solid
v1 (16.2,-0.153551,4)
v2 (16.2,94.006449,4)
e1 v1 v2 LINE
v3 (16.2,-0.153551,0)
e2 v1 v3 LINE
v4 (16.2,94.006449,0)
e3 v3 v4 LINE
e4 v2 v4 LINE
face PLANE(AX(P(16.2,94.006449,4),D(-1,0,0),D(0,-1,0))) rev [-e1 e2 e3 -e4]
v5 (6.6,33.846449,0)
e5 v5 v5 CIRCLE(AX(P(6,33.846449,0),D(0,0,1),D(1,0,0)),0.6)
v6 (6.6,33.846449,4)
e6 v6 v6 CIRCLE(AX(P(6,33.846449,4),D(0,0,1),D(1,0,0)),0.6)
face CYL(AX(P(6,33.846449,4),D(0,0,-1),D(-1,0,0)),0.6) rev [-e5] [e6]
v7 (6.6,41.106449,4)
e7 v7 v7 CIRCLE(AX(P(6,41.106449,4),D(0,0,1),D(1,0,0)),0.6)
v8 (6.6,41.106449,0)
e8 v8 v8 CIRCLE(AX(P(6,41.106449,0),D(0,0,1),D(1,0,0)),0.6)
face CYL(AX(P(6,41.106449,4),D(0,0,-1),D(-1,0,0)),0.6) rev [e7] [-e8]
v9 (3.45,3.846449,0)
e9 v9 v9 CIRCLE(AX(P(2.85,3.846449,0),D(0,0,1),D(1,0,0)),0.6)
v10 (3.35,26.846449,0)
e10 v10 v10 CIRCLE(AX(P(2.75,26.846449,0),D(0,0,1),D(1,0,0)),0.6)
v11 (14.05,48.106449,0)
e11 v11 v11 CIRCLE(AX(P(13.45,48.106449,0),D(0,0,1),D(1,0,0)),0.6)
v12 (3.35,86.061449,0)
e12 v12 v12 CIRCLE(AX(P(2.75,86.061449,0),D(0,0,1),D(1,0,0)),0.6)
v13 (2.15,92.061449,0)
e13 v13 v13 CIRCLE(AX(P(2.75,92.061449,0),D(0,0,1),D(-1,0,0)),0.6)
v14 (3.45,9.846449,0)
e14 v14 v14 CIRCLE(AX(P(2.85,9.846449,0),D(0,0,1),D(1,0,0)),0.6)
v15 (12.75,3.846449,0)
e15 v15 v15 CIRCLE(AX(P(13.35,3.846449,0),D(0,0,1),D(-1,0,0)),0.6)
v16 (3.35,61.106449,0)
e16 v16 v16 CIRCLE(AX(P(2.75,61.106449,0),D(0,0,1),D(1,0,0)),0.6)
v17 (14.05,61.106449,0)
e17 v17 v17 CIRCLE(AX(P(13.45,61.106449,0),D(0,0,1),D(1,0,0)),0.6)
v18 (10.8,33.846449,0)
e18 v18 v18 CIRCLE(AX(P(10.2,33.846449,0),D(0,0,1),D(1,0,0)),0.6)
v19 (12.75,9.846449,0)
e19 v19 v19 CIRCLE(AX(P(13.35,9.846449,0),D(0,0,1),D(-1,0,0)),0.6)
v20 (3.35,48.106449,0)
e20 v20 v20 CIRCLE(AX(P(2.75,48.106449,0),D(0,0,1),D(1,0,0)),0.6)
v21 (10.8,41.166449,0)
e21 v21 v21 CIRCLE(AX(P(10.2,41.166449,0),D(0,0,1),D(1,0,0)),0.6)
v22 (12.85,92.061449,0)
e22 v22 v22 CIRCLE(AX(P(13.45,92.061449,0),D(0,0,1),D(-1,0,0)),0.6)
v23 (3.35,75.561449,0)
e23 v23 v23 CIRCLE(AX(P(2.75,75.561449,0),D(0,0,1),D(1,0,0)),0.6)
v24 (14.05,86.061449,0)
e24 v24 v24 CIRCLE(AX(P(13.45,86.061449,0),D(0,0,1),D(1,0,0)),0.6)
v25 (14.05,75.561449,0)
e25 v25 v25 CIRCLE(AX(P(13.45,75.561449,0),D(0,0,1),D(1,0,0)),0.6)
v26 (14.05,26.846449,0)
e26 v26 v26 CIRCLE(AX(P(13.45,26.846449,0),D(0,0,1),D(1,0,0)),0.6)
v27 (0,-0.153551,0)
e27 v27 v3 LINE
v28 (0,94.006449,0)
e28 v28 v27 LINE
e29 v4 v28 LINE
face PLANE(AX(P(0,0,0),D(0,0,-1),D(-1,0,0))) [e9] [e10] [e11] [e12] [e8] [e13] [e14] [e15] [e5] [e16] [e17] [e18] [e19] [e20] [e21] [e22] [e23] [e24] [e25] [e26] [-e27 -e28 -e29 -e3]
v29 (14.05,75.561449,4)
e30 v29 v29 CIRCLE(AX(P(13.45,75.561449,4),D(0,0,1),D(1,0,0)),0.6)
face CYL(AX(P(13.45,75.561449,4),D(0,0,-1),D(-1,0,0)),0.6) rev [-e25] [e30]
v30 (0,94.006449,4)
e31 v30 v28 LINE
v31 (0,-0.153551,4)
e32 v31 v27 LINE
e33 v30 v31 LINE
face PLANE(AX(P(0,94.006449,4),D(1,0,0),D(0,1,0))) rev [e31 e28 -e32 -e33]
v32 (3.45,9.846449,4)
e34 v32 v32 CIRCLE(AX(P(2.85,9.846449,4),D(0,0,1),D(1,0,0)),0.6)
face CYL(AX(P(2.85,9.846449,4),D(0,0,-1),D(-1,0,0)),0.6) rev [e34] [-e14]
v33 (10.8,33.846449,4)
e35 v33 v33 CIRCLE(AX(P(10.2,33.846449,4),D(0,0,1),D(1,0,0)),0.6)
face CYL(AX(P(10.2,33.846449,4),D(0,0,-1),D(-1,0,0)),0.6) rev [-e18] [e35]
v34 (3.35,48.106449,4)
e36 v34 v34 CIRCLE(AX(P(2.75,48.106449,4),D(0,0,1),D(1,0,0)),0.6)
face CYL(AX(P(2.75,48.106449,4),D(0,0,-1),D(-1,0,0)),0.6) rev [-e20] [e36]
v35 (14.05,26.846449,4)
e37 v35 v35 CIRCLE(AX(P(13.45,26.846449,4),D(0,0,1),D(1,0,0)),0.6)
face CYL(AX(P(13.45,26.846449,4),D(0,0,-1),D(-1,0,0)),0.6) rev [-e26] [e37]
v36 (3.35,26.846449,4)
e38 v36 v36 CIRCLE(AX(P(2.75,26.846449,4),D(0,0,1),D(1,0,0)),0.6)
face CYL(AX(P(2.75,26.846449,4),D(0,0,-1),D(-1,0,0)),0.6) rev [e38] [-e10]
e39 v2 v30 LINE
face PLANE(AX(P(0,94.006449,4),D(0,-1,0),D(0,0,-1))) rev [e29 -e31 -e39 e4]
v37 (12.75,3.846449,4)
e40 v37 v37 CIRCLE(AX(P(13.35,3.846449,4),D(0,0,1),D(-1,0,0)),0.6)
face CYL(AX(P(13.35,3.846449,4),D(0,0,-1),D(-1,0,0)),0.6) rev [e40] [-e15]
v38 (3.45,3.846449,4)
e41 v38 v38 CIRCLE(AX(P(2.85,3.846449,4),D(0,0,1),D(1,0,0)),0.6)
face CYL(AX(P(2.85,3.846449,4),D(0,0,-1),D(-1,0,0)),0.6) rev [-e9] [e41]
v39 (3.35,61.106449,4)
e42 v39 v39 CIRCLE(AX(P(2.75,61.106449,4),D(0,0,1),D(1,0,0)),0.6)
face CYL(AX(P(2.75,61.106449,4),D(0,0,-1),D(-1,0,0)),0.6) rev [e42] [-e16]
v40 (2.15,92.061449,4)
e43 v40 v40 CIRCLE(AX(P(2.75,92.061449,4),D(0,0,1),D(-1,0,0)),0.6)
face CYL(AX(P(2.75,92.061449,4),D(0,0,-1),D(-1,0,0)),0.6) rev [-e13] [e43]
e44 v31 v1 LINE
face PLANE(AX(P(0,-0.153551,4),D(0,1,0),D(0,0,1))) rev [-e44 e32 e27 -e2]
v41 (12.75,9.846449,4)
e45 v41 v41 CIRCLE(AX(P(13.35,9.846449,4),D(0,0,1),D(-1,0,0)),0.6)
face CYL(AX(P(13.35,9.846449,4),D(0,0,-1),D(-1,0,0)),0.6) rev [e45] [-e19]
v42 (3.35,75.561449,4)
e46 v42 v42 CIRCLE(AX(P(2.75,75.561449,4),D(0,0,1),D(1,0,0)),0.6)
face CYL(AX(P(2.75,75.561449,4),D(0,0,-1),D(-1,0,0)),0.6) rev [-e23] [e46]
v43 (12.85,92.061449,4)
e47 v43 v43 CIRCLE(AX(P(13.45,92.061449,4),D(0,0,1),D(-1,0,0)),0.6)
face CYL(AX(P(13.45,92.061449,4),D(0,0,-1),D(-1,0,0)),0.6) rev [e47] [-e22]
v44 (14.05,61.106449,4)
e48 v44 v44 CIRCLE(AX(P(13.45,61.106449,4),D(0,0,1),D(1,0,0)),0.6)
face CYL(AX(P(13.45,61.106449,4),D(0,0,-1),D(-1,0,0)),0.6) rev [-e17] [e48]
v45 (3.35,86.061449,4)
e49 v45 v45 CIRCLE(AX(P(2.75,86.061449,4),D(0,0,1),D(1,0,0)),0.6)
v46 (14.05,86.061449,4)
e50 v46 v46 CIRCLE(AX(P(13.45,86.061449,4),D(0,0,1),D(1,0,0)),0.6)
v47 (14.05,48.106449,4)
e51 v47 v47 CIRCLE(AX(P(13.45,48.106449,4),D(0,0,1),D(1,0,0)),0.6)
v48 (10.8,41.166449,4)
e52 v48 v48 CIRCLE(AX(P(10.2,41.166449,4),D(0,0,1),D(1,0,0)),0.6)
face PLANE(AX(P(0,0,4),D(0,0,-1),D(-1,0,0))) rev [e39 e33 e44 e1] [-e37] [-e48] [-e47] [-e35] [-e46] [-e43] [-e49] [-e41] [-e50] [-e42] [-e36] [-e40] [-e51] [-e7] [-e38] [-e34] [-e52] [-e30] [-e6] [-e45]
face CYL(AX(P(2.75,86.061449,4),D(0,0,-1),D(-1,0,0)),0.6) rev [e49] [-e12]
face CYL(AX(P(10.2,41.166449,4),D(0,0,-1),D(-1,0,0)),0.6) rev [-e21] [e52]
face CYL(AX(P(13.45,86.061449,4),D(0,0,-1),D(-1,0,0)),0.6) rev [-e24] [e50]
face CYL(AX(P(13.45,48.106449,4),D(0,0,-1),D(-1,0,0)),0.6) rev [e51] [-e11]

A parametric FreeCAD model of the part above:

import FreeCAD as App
import Part
import Sketcher

V = App.Vector


def add_polygon(sketch, points):
    """Adds a closed chain of lines whose ends are joined by coincident constraints."""
    first, n = sketch.GeometryCount, len(points)
    for a, b in zip(points, points[1:] + points[:1]):
        sketch.addGeometry(Part.LineSegment(App.Vector(*a, 0), App.Vector(*b, 0)), False)
    for i in range(n):
        sketch.addConstraint(Sketcher.Constraint("Coincident", first + i, 2, first + (i + 1) % n, 1))

doc = App.newDocument("Part")
params = doc.addObject("Spreadsheet::Sheet", "Params")
for row, (alias, value) in enumerate([
    ("sketch1_diameter", "1.2 mm"),
    ("sketch1_width", "16.2 mm"),
    ("sketch1_height", "94.16 mm"),
    ("pad1_length", "4 mm"),
], start=1):
    params.set(f"A{row}", alias)
    params.set(f"B{row}", "=" + value)
    params.setAlias(f"B{row}", alias)

body = doc.addObject("PartDesign::Body", "Body")

sketch1 = doc.addObject("Sketcher::SketchObject", "Sketch")
body.addObject(sketch1)
sketch1.AttachmentSupport = (doc.XY_Plane, [""])
sketch1.MapMode = "FlatFace"
add_polygon(sketch1, [(0, 94), (0, -0.2), (16.2, -0.2), (16.2, 94)])
sketch1.addGeometry(Part.Circle(V(2.9, 3.8, 0), V(0, 0, 1), 0.6), False)
sketch1.addGeometry(Part.Circle(V(2.9, 9.8, 0), V(0, 0, 1), 0.6), False)
sketch1.addGeometry(Part.Circle(V(2.8, 26.8, 0), V(0, 0, 1), 0.6), False)
sketch1.addGeometry(Part.Circle(V(6, 33.8, 0), V(0, 0, 1), 0.6), False)
sketch1.addGeometry(Part.Circle(V(6, 41.1, 0), V(0, 0, 1), 0.6), False)
sketch1.addGeometry(Part.Circle(V(13.3, 3.8, 0), V(0, 0, 1), 0.6), False)
sketch1.addGeometry(Part.Circle(V(13.3, 9.8, 0), V(0, 0, 1), 0.6), False)
sketch1.addGeometry(Part.Circle(V(10.2, 33.8, 0), V(0, 0, 1), 0.6), False)
sketch1.addGeometry(Part.Circle(V(10.2, 41.2, 0), V(0, 0, 1), 0.6), False)
sketch1.addGeometry(Part.Circle(V(13.4, 26.8, 0), V(0, 0, 1), 0.6), False)
sketch1.addGeometry(Part.Circle(V(2.8, 48.1, 0), V(0, 0, 1), 0.6), False)
sketch1.addGeometry(Part.Circle(V(2.8, 61.1, 0), V(0, 0, 1), 0.6), False)
sketch1.addGeometry(Part.Circle(V(2.8, 75.6, 0), V(0, 0, 1), 0.6), False)
sketch1.addGeometry(Part.Circle(V(2.8, 86.1, 0), V(0, 0, 1), 0.6), False)
sketch1.addGeometry(Part.Circle(V(2.8, 92.1, 0), V(0, 0, 1), 0.6), False)
sketch1.addGeometry(Part.Circle(V(13.4, 48.1, 0), V(0, 0, 1), 0.6), False)
sketch1.addGeometry(Part.Circle(V(13.4, 61.1, 0), V(0, 0, 1), 0.6), False)
sketch1.addGeometry(Part.Circle(V(13.4, 75.6, 0), V(0, 0, 1), 0.6), False)
sketch1.addGeometry(Part.Circle(V(13.4, 86.1, 0), V(0, 0, 1), 0.6), False)
sketch1.addGeometry(Part.Circle(V(13.4, 92.1, 0), V(0, 0, 1), 0.6), False)
sketch1.addConstraint([
    Sketcher.Constraint("Vertical", 0),
    Sketcher.Constraint("Horizontal", 1),
    Sketcher.Constraint("Vertical", 2),
    Sketcher.Constraint("Horizontal", 3),
    Sketcher.Constraint("Equal", 4, 5),
    Sketcher.Constraint("Equal", 5, 6),
    Sketcher.Constraint("Equal", 6, 7),
    Sketcher.Constraint("Equal", 7, 8),
    Sketcher.Constraint("Equal", 8, 9),
    Sketcher.Constraint("Equal", 9, 10),
    Sketcher.Constraint("Equal", 10, 11),
    Sketcher.Constraint("Equal", 11, 12),
    Sketcher.Constraint("Equal", 12, 13),
    Sketcher.Constraint("Equal", 13, 14),
    Sketcher.Constraint("Equal", 14, 15),
    Sketcher.Constraint("Equal", 15, 16),
    Sketcher.Constraint("Equal", 16, 17),
    Sketcher.Constraint("Equal", 17, 18),
    Sketcher.Constraint("Equal", 18, 19),
    Sketcher.Constraint("Equal", 19, 20),
    Sketcher.Constraint("Equal", 20, 21),
    Sketcher.Constraint("Equal", 21, 22),
    Sketcher.Constraint("Equal", 22, 23),
    Sketcher.Constraint("PointOnObject", 0, 2, -2),
    Sketcher.Constraint("Horizontal", 4, 3, 9, 3),
    Sketcher.Constraint("Horizontal", 5, 3, 10, 3),
    Sketcher.Constraint("Horizontal", 7, 3, 11, 3),
    Sketcher.Constraint("Horizontal", 6, 3, 13, 3),
    Sketcher.Constraint("Horizontal", 14, 3, 19, 3),
    Sketcher.Constraint("Horizontal", 15, 3, 20, 3),
    Sketcher.Constraint("Horizontal", 16, 3, 21, 3),
    Sketcher.Constraint("Horizontal", 17, 3, 22, 3),
    Sketcher.Constraint("Horizontal", 18, 3, 23, 3),
    Sketcher.Constraint("Vertical", 4, 3, 5, 3),
    Sketcher.Constraint("Vertical", 7, 3, 8, 3),
    Sketcher.Constraint("Vertical", 9, 3, 10, 3),
    Sketcher.Constraint("Vertical", 11, 3, 12, 3),
    Sketcher.Constraint("Vertical", 6, 3, 14, 3),
    Sketcher.Constraint("Vertical", 14, 3, 15, 3),
    Sketcher.Constraint("Vertical", 15, 3, 16, 3),
    Sketcher.Constraint("Vertical", 16, 3, 17, 3),
    Sketcher.Constraint("Vertical", 17, 3, 18, 3),
    Sketcher.Constraint("Vertical", 13, 3, 19, 3),
    Sketcher.Constraint("Vertical", 19, 3, 20, 3),
    Sketcher.Constraint("Vertical", 20, 3, 21, 3),
    Sketcher.Constraint("Vertical", 21, 3, 22, 3),
    Sketcher.Constraint("Vertical", 22, 3, 23, 3),
    Sketcher.Constraint("Diameter", 4, 1.2),
    Sketcher.Constraint("DistanceX", 1, 1, 1, 2, 16.2),
    Sketcher.Constraint("DistanceX", -1, 1, 7, 3, 6.0),
    Sketcher.Constraint("DistanceY", 4, 3, 5, 3, 6.0),
    Sketcher.Constraint("DistanceY", 5, 3, 6, 3, 17.0),
    Sketcher.Constraint("DistanceY", 6, 3, 7, 3, 7.0),
    Sketcher.Constraint("DistanceY", 8, 3, 14, 3, 7.0),
    Sketcher.Constraint("DistanceY", 14, 3, 15, 3, 13.0),
    Sketcher.Constraint("DistanceY", 17, 3, 18, 3, 6.0),
    Sketcher.Constraint("DistanceY", 0, 2, 4, 3, 4.0),
    Sketcher.Constraint("DistanceY", 0, 2, 0, 1, 94.16),
    Sketcher.Constraint("DistanceX", -1, 1, 11, 3, 10.2),
    Sketcher.Constraint("DistanceX", 6, 3, 5, 3, 0.1),
    Sketcher.Constraint("DistanceX", 4, 3, 9, 3, 10.5),
    Sketcher.Constraint("DistanceX", 6, 3, 13, 3, 10.7),
    Sketcher.Constraint("DistanceY", 16, 3, 17, 3, 10.5),
    Sketcher.Constraint("DistanceX", -1, 1, 4, 3, 2.85),
    Sketcher.Constraint("DistanceY", 7, 3, 8, 3, 7.26),
    Sketcher.Constraint("DistanceY", 8, 3, 12, 3, 0.06),
    Sketcher.Constraint("DistanceY", 15, 3, 16, 3, 14.455),
    Sketcher.Constraint("DistanceY", -1, 1, 4, 3, 3.846449),
])
sketch1.setExpression("Constraints[51]", "Params.sketch1_diameter")
sketch1.setExpression("Constraints[52]", "Params.sketch1_width")
sketch1.setExpression("Constraints[61]", "Params.sketch1_height")
pad1 = doc.addObject("PartDesign::Pad", "Pad")
body.addObject(pad1)
pad1.Profile = sketch1
pad1.setExpression("Length", "Params.pad1_length")

doc.recompute()
